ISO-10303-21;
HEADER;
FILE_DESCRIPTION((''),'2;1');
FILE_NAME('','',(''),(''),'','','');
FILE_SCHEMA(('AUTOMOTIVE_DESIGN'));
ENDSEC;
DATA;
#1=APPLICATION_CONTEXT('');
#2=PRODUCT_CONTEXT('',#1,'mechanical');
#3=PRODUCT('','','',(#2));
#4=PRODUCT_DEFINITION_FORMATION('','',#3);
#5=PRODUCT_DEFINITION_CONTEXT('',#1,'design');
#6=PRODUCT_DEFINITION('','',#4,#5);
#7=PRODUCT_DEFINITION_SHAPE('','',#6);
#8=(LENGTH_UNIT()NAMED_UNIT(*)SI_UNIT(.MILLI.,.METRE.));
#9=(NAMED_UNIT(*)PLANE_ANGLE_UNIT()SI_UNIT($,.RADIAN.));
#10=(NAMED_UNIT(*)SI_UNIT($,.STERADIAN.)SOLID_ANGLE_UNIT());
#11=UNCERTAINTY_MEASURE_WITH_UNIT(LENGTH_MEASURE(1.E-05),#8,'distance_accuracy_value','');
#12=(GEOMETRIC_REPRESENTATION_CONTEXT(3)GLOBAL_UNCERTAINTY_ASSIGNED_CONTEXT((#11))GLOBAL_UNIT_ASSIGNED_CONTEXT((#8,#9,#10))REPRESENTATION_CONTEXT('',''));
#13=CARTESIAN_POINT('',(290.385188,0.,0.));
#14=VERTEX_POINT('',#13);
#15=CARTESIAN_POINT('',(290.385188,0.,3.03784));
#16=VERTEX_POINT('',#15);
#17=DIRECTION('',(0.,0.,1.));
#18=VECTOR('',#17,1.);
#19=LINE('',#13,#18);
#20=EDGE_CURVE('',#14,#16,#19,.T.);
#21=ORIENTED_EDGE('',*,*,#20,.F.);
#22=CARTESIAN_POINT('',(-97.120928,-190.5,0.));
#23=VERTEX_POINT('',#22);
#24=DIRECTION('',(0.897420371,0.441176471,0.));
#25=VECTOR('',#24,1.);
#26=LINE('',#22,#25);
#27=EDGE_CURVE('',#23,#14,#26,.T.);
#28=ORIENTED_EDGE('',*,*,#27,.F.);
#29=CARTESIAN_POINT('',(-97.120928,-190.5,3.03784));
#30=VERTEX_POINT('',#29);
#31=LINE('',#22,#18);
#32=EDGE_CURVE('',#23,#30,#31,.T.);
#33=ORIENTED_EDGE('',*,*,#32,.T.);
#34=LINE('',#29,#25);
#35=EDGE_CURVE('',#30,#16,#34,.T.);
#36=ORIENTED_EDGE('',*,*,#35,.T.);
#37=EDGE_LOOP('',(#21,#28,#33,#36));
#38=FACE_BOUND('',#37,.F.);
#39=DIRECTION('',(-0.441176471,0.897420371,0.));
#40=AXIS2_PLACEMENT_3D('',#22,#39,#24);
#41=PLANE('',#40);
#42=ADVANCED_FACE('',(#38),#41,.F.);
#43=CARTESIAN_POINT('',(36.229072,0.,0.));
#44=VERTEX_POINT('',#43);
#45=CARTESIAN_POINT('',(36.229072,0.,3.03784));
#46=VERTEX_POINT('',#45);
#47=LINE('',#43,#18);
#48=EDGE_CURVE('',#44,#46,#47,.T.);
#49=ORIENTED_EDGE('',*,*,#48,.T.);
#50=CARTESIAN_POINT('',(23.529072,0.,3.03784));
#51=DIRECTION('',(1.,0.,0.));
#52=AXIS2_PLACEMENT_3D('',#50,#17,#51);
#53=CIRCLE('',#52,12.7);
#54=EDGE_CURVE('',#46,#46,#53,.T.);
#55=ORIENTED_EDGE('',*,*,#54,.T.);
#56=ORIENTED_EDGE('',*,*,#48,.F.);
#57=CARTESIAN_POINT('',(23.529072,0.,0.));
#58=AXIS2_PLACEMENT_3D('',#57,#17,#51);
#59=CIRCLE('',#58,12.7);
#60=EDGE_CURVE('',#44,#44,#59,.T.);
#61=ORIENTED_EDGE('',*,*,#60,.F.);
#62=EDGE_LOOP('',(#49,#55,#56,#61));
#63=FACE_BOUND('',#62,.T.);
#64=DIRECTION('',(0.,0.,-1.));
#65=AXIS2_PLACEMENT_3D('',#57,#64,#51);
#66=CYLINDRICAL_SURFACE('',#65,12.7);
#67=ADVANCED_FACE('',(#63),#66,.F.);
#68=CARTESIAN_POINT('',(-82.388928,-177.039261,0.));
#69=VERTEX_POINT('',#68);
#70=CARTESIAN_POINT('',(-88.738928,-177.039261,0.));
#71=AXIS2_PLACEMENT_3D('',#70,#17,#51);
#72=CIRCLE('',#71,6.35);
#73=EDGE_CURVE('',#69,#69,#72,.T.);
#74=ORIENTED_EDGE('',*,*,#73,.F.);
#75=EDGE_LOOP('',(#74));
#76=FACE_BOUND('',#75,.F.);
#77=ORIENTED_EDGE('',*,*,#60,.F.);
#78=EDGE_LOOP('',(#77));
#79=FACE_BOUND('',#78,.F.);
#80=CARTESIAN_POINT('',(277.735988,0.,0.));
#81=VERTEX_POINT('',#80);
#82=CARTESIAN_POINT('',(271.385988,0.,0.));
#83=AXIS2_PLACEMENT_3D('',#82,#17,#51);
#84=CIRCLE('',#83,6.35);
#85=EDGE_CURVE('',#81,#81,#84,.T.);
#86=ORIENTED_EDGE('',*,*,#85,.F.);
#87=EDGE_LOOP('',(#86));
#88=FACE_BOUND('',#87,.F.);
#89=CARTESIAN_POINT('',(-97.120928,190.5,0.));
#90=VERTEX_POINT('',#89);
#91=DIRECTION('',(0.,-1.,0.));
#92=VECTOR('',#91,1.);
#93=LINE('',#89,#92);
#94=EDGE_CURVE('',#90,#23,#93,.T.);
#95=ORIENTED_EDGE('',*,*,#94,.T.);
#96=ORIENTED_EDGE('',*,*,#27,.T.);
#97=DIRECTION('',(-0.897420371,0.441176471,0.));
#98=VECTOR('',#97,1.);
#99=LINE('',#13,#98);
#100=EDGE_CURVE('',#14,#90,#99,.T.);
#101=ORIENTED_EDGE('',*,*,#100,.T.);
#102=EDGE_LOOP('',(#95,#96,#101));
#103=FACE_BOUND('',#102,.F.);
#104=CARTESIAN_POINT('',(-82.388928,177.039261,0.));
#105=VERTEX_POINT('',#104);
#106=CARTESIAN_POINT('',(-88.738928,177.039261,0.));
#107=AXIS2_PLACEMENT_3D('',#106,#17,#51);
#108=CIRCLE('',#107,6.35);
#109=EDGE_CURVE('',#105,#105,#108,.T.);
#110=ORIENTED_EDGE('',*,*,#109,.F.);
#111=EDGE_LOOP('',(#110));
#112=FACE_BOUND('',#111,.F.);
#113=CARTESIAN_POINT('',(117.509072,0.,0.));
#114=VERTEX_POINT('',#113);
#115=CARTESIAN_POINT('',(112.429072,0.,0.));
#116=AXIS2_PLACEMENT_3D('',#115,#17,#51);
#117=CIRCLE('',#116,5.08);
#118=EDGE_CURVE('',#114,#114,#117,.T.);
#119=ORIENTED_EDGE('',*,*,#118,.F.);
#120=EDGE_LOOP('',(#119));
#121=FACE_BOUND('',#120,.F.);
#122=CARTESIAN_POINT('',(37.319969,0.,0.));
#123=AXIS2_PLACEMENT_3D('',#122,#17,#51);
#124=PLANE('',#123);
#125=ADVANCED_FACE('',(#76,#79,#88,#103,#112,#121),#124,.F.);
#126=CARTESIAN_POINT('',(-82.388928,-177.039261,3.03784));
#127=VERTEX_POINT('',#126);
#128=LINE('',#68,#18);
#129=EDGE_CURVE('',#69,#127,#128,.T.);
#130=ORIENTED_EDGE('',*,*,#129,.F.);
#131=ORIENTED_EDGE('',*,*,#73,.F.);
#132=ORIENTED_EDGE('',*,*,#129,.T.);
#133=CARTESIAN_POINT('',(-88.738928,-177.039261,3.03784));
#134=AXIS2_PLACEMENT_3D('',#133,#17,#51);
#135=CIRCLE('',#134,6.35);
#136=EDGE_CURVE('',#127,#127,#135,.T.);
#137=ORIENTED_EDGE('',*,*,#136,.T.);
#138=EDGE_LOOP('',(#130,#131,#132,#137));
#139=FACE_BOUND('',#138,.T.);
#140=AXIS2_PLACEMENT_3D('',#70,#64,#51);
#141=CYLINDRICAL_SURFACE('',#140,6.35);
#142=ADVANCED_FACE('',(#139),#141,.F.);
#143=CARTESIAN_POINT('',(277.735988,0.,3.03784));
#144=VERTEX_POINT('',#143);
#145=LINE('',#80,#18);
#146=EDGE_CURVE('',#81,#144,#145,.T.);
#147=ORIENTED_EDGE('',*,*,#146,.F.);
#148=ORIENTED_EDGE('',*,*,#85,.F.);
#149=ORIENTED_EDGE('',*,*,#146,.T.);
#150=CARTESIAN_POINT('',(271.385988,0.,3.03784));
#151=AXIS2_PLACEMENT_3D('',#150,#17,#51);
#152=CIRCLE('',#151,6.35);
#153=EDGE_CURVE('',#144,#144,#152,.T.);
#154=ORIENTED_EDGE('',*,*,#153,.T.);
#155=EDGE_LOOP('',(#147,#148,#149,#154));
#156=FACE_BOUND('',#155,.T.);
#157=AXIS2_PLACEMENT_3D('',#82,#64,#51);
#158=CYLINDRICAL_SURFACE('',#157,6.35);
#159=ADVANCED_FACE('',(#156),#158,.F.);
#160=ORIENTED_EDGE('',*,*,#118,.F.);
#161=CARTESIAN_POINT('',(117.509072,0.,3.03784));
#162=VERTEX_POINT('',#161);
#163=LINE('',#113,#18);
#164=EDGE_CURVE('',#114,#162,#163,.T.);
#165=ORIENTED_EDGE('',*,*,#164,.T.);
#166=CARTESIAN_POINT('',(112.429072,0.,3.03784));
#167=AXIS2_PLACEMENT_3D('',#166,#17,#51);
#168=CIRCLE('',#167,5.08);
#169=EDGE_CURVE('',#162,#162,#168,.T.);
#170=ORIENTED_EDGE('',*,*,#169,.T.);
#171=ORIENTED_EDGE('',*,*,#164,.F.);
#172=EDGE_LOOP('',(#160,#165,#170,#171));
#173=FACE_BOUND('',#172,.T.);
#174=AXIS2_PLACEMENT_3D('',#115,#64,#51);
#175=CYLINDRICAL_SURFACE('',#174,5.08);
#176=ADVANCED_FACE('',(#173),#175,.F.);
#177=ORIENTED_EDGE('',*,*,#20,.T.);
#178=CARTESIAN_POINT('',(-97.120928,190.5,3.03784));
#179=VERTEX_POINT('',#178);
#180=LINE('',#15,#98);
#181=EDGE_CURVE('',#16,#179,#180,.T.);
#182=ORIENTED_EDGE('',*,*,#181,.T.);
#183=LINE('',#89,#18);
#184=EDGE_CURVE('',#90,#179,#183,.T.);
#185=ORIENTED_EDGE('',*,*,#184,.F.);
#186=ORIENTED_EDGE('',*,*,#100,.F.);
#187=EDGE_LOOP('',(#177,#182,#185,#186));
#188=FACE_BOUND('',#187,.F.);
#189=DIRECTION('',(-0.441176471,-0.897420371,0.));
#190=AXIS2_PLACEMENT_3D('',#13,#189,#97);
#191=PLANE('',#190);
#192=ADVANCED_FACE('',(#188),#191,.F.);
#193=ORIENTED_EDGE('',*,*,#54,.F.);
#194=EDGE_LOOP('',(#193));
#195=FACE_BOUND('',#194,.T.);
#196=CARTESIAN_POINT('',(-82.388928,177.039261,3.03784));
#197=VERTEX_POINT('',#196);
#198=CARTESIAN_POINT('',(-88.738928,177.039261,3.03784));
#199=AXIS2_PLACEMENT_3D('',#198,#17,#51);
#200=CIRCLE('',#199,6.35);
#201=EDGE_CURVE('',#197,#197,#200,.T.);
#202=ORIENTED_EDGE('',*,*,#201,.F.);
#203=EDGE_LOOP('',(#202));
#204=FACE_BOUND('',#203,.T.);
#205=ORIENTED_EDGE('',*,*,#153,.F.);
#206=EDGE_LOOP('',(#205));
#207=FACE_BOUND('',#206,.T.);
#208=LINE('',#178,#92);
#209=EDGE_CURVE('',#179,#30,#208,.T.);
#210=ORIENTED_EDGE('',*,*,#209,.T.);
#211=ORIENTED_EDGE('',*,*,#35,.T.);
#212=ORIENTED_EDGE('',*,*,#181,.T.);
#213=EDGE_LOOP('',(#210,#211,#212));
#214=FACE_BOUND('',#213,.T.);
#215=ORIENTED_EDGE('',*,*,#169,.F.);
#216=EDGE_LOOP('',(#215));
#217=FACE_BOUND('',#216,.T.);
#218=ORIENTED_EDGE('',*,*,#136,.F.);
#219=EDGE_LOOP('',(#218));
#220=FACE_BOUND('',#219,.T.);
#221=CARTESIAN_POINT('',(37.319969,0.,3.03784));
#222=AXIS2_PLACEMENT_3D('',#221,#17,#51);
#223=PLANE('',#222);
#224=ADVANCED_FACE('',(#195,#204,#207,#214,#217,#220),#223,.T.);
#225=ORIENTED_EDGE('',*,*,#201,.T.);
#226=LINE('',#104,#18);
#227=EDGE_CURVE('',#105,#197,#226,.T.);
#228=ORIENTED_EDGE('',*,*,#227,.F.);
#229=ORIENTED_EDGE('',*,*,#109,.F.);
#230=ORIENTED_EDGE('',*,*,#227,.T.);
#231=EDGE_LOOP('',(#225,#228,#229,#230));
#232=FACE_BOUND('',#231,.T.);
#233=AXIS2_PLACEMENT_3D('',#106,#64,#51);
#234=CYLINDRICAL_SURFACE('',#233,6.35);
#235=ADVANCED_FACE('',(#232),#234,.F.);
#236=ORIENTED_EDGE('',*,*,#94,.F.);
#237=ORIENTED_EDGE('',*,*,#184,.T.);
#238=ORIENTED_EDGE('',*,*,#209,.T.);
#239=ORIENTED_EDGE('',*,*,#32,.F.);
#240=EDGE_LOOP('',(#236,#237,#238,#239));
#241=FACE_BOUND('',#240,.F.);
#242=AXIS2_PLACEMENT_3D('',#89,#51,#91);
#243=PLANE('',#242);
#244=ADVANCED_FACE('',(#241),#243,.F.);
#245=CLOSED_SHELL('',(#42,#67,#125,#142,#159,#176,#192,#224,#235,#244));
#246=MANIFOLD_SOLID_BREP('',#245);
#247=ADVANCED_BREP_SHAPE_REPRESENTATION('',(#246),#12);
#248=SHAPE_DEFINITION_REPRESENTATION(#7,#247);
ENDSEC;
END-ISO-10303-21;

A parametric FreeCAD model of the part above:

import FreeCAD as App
import Part
import Sketcher
Q = App.Units.Quantity


def add_polygon(sketch, points):
    """Adds a closed chain of lines whose ends are joined by coincident constraints."""
    first, n = sketch.GeometryCount, len(points)
    for a, b in zip(points, points[1:] + points[:1]):
        sketch.addGeometry(Part.LineSegment(App.Vector(*a, 0), App.Vector(*b, 0)), False)
    for i in range(n):
        sketch.addConstraint(Sketcher.Constraint("Coincident", first + i, 2, first + (i + 1) % n, 1))

doc = App.newDocument("Part")
body = doc.addObject("PartDesign::Body", "Body")

# Sketch on XY plane
sketch1 = body.newObject("Sketcher::SketchObject", "Sketch")
sketch1.AttachmentSupport = (doc.getObject("XY_Plane"), [""])
sketch1.MapMode = "FlatFace"
add_polygon(sketch1, [(-97, -190), (290, 0), (-97, 190)])  # lines 0-2
sketch1.addGeometry(Part.Circle(App.Vector(-89, -177, 0), App.Vector(0, 0, 1), 6), False)  # 3
sketch1.addGeometry(Part.Circle(App.Vector(24, 0, 0), App.Vector(0, 0, 1), 13), False)  # 4
sketch1.addGeometry(Part.Circle(App.Vector(112, 0, 0), App.Vector(0, 0, 1), 5), False)  # 5
sketch1.addGeometry(Part.Circle(App.Vector(271, 0, 0), App.Vector(0, 0, 1), 6), False)  # 6
sketch1.addGeometry(Part.Circle(App.Vector(-89, 177, 0), App.Vector(0, 0, 1), 6), False)  # 7
sketch1.addConstraint(Sketcher.Constraint("Vertical", 2))
sketch1.addConstraint(Sketcher.Constraint("Equal", 3, 6))
sketch1.addConstraint(Sketcher.Constraint("Equal", 6, 7))
sketch1.addConstraint(Sketcher.Constraint("Symmetric", 3, 3, 7, 3, -1))
sketch1.addConstraint(Sketcher.Constraint("PointOnObject", 4, 3, -1))
sketch1.addConstraint(Sketcher.Constraint("PointOnObject", 5, 3, -1))
sketch1.addConstraint(Sketcher.Constraint("PointOnObject", 6, 3, -1))
sketch1.addConstraint(Sketcher.Constraint("PointOnObject", 0, 2, -1))
sketch1.addConstraint(Sketcher.Constraint("Equal", 0, 1))
sketch1.addConstraint(Sketcher.Constraint("Diameter", 4, Q("1 in")))
sketch1.addConstraint(Sketcher.Constraint("Diameter", 3, Q("0.5 in")))
sketch1.addConstraint(Sketcher.Constraint("Diameter", 5, Q("0.4 in")))
sketch1.addConstraint(Sketcher.Constraint("DistanceY", 2, 2, 2, 1, Q("15 in")))
sketch1.addConstraint(Sketcher.Constraint("Distance", 0, Q("17 in")))
sketch1.addConstraint(Sketcher.Constraint("DistanceX", 4, 3, 5, 3, Q("3.5 in")))
sketch1.addConstraint(Sketcher.Constraint("DistanceX", 3, 3, 4, 3, Q("4.42 in")))
sketch1.addConstraint(Sketcher.Constraint("DistanceX", 1, 2, 7, 3, Q("0.33 in")))
sketch1.addConstraint(Sketcher.Constraint("DistanceX", 6, 3, 0, 2, Q("0.748 in")))
sketch1.addConstraint(Sketcher.Constraint("DistanceX", 3, 3, -1, 1, Q("88.738928 mm")))
sketch1.addConstraint(Sketcher.Constraint("DistanceY", 3, 3, -1, 1, Q("177.039261 mm")))
pad1 = body.newObject("PartDesign::Pad", "Pad")
pad1.Profile = sketch1
pad1.Length = Q("0.1196 in")

doc.recompute()
